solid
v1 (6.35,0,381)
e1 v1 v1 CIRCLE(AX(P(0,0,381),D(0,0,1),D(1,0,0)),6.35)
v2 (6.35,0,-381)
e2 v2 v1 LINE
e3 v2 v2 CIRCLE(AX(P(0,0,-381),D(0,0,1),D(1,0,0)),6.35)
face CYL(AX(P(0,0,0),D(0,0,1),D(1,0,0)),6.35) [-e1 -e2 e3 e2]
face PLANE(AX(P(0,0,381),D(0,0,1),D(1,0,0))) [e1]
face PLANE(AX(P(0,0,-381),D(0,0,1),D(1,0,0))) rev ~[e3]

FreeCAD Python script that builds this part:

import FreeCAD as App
import Part
import Sketcher

V = App.Vector
Q = App.Units.Quantity

doc = App.newDocument("Part")
body = doc.addObject("PartDesign::Body", "Body")

# Sketch on XY plane
sketch1 = body.newObject("Sketcher::SketchObject", "Sketch")
sketch1.AttachmentSupport = (doc.getObject("XY_Plane"), [""])
sketch1.MapMode = "FlatFace"
sketch1.addGeometry(Part.Circle(V(0, 0, 0), V(0, 0, 1), 6), False)
sketch1.addConstraint([
    Sketcher.Constraint("Coincident", 0, 3, -1, 1),
    Sketcher.Constraint("Diameter", 0, Q("0.5 in")),
])
pad1 = body.newObject("PartDesign::Pad", "Pad")
pad1.Profile = sketch1
pad1.Length = Q("30 in")
pad1.Midplane = True

doc.recompute()
